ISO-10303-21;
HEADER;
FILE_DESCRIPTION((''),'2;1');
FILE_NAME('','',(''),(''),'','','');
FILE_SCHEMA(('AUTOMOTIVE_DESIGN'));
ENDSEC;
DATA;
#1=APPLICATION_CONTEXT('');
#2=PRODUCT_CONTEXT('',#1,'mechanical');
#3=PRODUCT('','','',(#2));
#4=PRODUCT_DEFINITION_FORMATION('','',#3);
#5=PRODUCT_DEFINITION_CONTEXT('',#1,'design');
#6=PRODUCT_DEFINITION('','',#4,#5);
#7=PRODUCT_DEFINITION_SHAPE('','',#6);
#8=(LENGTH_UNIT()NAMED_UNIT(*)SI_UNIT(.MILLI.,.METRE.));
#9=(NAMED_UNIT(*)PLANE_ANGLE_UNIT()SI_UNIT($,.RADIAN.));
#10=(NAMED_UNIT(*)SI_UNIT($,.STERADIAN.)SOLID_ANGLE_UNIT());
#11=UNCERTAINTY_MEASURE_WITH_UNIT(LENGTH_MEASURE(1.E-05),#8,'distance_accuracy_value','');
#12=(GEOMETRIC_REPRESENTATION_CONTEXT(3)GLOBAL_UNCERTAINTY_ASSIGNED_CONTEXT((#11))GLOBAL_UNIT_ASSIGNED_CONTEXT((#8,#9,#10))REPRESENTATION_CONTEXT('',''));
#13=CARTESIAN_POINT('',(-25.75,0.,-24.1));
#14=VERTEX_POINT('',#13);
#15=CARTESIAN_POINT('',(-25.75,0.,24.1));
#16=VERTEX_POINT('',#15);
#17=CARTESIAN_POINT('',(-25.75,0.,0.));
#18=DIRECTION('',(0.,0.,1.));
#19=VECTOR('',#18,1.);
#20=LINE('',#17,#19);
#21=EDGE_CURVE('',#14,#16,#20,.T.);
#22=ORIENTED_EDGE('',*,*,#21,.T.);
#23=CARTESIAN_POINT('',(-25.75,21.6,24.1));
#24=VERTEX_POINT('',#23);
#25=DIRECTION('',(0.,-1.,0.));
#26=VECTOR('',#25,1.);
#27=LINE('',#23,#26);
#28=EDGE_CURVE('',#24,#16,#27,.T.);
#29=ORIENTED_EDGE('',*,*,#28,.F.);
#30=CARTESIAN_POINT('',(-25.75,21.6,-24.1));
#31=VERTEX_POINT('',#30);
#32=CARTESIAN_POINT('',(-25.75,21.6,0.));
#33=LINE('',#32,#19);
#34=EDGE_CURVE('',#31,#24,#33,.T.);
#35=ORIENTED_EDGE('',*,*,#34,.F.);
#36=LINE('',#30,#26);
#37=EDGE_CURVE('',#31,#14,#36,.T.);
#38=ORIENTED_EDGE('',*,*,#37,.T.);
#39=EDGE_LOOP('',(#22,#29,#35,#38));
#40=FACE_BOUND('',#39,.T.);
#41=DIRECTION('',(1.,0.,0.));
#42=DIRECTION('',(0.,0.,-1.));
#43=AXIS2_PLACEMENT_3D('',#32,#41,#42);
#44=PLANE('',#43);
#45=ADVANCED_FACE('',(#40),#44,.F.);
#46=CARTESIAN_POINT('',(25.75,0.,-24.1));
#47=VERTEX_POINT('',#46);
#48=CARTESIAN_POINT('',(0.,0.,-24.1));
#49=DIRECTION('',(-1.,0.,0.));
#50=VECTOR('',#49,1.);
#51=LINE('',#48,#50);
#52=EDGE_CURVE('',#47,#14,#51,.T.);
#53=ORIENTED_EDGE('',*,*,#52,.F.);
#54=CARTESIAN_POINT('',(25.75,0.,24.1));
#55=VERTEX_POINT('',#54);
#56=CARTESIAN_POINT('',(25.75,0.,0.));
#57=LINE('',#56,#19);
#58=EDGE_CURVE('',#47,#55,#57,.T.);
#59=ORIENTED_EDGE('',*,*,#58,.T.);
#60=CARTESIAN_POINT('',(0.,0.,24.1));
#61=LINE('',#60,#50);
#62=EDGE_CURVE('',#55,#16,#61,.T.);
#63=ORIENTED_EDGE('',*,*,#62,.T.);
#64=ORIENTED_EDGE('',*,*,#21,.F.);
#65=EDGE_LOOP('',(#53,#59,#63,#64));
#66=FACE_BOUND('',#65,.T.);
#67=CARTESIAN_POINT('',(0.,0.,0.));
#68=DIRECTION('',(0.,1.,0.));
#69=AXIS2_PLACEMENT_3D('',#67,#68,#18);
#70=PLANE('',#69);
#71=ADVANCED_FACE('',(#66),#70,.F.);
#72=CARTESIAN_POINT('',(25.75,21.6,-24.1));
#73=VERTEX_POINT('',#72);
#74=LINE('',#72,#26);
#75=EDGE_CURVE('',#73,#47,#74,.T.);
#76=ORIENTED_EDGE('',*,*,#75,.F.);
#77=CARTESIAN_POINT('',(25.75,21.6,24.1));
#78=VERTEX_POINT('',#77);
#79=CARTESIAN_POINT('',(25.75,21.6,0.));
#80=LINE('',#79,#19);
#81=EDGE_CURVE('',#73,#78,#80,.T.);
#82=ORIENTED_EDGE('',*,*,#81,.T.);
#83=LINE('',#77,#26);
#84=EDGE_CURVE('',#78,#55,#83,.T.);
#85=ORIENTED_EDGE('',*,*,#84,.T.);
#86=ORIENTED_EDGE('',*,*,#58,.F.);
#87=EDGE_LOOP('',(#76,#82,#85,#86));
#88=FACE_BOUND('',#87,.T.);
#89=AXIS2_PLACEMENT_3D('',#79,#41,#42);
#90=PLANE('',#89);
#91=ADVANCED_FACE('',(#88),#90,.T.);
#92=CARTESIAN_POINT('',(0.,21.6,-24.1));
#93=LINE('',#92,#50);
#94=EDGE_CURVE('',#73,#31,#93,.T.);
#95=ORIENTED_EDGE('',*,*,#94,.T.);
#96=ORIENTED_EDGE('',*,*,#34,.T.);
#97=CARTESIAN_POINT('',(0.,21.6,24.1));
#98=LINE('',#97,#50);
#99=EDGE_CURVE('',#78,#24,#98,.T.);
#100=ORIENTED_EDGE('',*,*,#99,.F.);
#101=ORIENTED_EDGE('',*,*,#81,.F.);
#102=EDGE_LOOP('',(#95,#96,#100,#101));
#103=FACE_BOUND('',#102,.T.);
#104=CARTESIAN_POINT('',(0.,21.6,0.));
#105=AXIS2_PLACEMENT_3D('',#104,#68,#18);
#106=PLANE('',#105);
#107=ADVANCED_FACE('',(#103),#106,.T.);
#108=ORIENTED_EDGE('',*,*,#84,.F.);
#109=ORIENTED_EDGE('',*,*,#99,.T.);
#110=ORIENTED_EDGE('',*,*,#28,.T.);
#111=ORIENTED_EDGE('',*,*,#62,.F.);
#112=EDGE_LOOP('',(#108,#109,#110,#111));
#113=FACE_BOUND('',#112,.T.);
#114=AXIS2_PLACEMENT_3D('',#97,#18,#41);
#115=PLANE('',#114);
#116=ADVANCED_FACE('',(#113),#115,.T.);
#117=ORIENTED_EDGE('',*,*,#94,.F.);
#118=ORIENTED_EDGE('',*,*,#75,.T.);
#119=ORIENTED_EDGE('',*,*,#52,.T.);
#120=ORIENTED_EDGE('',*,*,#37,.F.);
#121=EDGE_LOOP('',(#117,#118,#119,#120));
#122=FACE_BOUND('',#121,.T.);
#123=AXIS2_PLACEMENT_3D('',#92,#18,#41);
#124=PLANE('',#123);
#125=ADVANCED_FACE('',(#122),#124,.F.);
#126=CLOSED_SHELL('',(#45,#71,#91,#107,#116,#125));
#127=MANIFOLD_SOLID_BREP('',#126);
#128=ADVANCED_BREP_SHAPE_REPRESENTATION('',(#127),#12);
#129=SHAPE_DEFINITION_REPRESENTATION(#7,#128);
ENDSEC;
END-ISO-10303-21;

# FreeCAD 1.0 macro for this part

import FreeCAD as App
import Part
import Sketcher

V = App.Vector
Q = App.Units.Quantity


def add_polygon(sketch, points):
    """Adds a closed chain of lines whose ends are joined by coincident constraints."""
    first, n = sketch.GeometryCount, len(points)
    for a, b in zip(points, points[1:] + points[:1]):
        sketch.addGeometry(Part.LineSegment(App.Vector(*a, 0), App.Vector(*b, 0)), False)
    for i in range(n):
        sketch.addConstraint(Sketcher.Constraint("Coincident", first + i, 2, first + (i + 1) % n, 1))

doc = App.newDocument("Part")
params = doc.addObject("Spreadsheet::Sheet", "Params")
for row, (alias, value) in enumerate([
    ("sketch1_width", "51.5 mm"),
    ("sketch1_height", "48.2 mm"),
    ("pad1_length", "21.6 mm"),
], start=1):
    params.set(f"A{row}", alias)
    params.set(f"B{row}", "=" + value)
    params.setAlias(f"B{row}", alias)

body = doc.addObject("PartDesign::Body", "Body")

# Sketch on XZ plane
sketch1 = body.newObject("Sketcher::SketchObject", "Sketch")
sketch1.AttachmentSupport = (doc.getObject("XZ_Plane"), [""])
sketch1.MapMode = "FlatFace"
add_polygon(sketch1, [(-26, -24), (-26, 24), (26, 24), (26, -24)])  # lines 0-3
sketch1.addConstraint(Sketcher.Constraint("Vertical", 0))
sketch1.addConstraint(Sketcher.Constraint("Horizontal", 1))
sketch1.addConstraint(Sketcher.Constraint("Vertical", 2))
sketch1.addConstraint(Sketcher.Constraint("Horizontal", 3))
sketch1.addConstraint(Sketcher.Constraint("Symmetric", 0, 2, 2, 2, -1, 1))
sketch1.addConstraint(Sketcher.Constraint("DistanceX", 1, 1, 1, 2, Q("51.5 mm")))
sketch1.addConstraint(Sketcher.Constraint("DistanceY", 0, 1, 0, 2, Q("48.2 mm")))
sketch1.setExpression("Constraints[9]", "Params.sketch1_width")
sketch1.setExpression("Constraints[10]", "Params.sketch1_height")
pad1 = body.newObject("PartDesign::Pad", "Pad")
pad1.Profile = sketch1
pad1.setExpression("Length", "Params.pad1_length")
pad1.Reversed = True

doc.recompute()
